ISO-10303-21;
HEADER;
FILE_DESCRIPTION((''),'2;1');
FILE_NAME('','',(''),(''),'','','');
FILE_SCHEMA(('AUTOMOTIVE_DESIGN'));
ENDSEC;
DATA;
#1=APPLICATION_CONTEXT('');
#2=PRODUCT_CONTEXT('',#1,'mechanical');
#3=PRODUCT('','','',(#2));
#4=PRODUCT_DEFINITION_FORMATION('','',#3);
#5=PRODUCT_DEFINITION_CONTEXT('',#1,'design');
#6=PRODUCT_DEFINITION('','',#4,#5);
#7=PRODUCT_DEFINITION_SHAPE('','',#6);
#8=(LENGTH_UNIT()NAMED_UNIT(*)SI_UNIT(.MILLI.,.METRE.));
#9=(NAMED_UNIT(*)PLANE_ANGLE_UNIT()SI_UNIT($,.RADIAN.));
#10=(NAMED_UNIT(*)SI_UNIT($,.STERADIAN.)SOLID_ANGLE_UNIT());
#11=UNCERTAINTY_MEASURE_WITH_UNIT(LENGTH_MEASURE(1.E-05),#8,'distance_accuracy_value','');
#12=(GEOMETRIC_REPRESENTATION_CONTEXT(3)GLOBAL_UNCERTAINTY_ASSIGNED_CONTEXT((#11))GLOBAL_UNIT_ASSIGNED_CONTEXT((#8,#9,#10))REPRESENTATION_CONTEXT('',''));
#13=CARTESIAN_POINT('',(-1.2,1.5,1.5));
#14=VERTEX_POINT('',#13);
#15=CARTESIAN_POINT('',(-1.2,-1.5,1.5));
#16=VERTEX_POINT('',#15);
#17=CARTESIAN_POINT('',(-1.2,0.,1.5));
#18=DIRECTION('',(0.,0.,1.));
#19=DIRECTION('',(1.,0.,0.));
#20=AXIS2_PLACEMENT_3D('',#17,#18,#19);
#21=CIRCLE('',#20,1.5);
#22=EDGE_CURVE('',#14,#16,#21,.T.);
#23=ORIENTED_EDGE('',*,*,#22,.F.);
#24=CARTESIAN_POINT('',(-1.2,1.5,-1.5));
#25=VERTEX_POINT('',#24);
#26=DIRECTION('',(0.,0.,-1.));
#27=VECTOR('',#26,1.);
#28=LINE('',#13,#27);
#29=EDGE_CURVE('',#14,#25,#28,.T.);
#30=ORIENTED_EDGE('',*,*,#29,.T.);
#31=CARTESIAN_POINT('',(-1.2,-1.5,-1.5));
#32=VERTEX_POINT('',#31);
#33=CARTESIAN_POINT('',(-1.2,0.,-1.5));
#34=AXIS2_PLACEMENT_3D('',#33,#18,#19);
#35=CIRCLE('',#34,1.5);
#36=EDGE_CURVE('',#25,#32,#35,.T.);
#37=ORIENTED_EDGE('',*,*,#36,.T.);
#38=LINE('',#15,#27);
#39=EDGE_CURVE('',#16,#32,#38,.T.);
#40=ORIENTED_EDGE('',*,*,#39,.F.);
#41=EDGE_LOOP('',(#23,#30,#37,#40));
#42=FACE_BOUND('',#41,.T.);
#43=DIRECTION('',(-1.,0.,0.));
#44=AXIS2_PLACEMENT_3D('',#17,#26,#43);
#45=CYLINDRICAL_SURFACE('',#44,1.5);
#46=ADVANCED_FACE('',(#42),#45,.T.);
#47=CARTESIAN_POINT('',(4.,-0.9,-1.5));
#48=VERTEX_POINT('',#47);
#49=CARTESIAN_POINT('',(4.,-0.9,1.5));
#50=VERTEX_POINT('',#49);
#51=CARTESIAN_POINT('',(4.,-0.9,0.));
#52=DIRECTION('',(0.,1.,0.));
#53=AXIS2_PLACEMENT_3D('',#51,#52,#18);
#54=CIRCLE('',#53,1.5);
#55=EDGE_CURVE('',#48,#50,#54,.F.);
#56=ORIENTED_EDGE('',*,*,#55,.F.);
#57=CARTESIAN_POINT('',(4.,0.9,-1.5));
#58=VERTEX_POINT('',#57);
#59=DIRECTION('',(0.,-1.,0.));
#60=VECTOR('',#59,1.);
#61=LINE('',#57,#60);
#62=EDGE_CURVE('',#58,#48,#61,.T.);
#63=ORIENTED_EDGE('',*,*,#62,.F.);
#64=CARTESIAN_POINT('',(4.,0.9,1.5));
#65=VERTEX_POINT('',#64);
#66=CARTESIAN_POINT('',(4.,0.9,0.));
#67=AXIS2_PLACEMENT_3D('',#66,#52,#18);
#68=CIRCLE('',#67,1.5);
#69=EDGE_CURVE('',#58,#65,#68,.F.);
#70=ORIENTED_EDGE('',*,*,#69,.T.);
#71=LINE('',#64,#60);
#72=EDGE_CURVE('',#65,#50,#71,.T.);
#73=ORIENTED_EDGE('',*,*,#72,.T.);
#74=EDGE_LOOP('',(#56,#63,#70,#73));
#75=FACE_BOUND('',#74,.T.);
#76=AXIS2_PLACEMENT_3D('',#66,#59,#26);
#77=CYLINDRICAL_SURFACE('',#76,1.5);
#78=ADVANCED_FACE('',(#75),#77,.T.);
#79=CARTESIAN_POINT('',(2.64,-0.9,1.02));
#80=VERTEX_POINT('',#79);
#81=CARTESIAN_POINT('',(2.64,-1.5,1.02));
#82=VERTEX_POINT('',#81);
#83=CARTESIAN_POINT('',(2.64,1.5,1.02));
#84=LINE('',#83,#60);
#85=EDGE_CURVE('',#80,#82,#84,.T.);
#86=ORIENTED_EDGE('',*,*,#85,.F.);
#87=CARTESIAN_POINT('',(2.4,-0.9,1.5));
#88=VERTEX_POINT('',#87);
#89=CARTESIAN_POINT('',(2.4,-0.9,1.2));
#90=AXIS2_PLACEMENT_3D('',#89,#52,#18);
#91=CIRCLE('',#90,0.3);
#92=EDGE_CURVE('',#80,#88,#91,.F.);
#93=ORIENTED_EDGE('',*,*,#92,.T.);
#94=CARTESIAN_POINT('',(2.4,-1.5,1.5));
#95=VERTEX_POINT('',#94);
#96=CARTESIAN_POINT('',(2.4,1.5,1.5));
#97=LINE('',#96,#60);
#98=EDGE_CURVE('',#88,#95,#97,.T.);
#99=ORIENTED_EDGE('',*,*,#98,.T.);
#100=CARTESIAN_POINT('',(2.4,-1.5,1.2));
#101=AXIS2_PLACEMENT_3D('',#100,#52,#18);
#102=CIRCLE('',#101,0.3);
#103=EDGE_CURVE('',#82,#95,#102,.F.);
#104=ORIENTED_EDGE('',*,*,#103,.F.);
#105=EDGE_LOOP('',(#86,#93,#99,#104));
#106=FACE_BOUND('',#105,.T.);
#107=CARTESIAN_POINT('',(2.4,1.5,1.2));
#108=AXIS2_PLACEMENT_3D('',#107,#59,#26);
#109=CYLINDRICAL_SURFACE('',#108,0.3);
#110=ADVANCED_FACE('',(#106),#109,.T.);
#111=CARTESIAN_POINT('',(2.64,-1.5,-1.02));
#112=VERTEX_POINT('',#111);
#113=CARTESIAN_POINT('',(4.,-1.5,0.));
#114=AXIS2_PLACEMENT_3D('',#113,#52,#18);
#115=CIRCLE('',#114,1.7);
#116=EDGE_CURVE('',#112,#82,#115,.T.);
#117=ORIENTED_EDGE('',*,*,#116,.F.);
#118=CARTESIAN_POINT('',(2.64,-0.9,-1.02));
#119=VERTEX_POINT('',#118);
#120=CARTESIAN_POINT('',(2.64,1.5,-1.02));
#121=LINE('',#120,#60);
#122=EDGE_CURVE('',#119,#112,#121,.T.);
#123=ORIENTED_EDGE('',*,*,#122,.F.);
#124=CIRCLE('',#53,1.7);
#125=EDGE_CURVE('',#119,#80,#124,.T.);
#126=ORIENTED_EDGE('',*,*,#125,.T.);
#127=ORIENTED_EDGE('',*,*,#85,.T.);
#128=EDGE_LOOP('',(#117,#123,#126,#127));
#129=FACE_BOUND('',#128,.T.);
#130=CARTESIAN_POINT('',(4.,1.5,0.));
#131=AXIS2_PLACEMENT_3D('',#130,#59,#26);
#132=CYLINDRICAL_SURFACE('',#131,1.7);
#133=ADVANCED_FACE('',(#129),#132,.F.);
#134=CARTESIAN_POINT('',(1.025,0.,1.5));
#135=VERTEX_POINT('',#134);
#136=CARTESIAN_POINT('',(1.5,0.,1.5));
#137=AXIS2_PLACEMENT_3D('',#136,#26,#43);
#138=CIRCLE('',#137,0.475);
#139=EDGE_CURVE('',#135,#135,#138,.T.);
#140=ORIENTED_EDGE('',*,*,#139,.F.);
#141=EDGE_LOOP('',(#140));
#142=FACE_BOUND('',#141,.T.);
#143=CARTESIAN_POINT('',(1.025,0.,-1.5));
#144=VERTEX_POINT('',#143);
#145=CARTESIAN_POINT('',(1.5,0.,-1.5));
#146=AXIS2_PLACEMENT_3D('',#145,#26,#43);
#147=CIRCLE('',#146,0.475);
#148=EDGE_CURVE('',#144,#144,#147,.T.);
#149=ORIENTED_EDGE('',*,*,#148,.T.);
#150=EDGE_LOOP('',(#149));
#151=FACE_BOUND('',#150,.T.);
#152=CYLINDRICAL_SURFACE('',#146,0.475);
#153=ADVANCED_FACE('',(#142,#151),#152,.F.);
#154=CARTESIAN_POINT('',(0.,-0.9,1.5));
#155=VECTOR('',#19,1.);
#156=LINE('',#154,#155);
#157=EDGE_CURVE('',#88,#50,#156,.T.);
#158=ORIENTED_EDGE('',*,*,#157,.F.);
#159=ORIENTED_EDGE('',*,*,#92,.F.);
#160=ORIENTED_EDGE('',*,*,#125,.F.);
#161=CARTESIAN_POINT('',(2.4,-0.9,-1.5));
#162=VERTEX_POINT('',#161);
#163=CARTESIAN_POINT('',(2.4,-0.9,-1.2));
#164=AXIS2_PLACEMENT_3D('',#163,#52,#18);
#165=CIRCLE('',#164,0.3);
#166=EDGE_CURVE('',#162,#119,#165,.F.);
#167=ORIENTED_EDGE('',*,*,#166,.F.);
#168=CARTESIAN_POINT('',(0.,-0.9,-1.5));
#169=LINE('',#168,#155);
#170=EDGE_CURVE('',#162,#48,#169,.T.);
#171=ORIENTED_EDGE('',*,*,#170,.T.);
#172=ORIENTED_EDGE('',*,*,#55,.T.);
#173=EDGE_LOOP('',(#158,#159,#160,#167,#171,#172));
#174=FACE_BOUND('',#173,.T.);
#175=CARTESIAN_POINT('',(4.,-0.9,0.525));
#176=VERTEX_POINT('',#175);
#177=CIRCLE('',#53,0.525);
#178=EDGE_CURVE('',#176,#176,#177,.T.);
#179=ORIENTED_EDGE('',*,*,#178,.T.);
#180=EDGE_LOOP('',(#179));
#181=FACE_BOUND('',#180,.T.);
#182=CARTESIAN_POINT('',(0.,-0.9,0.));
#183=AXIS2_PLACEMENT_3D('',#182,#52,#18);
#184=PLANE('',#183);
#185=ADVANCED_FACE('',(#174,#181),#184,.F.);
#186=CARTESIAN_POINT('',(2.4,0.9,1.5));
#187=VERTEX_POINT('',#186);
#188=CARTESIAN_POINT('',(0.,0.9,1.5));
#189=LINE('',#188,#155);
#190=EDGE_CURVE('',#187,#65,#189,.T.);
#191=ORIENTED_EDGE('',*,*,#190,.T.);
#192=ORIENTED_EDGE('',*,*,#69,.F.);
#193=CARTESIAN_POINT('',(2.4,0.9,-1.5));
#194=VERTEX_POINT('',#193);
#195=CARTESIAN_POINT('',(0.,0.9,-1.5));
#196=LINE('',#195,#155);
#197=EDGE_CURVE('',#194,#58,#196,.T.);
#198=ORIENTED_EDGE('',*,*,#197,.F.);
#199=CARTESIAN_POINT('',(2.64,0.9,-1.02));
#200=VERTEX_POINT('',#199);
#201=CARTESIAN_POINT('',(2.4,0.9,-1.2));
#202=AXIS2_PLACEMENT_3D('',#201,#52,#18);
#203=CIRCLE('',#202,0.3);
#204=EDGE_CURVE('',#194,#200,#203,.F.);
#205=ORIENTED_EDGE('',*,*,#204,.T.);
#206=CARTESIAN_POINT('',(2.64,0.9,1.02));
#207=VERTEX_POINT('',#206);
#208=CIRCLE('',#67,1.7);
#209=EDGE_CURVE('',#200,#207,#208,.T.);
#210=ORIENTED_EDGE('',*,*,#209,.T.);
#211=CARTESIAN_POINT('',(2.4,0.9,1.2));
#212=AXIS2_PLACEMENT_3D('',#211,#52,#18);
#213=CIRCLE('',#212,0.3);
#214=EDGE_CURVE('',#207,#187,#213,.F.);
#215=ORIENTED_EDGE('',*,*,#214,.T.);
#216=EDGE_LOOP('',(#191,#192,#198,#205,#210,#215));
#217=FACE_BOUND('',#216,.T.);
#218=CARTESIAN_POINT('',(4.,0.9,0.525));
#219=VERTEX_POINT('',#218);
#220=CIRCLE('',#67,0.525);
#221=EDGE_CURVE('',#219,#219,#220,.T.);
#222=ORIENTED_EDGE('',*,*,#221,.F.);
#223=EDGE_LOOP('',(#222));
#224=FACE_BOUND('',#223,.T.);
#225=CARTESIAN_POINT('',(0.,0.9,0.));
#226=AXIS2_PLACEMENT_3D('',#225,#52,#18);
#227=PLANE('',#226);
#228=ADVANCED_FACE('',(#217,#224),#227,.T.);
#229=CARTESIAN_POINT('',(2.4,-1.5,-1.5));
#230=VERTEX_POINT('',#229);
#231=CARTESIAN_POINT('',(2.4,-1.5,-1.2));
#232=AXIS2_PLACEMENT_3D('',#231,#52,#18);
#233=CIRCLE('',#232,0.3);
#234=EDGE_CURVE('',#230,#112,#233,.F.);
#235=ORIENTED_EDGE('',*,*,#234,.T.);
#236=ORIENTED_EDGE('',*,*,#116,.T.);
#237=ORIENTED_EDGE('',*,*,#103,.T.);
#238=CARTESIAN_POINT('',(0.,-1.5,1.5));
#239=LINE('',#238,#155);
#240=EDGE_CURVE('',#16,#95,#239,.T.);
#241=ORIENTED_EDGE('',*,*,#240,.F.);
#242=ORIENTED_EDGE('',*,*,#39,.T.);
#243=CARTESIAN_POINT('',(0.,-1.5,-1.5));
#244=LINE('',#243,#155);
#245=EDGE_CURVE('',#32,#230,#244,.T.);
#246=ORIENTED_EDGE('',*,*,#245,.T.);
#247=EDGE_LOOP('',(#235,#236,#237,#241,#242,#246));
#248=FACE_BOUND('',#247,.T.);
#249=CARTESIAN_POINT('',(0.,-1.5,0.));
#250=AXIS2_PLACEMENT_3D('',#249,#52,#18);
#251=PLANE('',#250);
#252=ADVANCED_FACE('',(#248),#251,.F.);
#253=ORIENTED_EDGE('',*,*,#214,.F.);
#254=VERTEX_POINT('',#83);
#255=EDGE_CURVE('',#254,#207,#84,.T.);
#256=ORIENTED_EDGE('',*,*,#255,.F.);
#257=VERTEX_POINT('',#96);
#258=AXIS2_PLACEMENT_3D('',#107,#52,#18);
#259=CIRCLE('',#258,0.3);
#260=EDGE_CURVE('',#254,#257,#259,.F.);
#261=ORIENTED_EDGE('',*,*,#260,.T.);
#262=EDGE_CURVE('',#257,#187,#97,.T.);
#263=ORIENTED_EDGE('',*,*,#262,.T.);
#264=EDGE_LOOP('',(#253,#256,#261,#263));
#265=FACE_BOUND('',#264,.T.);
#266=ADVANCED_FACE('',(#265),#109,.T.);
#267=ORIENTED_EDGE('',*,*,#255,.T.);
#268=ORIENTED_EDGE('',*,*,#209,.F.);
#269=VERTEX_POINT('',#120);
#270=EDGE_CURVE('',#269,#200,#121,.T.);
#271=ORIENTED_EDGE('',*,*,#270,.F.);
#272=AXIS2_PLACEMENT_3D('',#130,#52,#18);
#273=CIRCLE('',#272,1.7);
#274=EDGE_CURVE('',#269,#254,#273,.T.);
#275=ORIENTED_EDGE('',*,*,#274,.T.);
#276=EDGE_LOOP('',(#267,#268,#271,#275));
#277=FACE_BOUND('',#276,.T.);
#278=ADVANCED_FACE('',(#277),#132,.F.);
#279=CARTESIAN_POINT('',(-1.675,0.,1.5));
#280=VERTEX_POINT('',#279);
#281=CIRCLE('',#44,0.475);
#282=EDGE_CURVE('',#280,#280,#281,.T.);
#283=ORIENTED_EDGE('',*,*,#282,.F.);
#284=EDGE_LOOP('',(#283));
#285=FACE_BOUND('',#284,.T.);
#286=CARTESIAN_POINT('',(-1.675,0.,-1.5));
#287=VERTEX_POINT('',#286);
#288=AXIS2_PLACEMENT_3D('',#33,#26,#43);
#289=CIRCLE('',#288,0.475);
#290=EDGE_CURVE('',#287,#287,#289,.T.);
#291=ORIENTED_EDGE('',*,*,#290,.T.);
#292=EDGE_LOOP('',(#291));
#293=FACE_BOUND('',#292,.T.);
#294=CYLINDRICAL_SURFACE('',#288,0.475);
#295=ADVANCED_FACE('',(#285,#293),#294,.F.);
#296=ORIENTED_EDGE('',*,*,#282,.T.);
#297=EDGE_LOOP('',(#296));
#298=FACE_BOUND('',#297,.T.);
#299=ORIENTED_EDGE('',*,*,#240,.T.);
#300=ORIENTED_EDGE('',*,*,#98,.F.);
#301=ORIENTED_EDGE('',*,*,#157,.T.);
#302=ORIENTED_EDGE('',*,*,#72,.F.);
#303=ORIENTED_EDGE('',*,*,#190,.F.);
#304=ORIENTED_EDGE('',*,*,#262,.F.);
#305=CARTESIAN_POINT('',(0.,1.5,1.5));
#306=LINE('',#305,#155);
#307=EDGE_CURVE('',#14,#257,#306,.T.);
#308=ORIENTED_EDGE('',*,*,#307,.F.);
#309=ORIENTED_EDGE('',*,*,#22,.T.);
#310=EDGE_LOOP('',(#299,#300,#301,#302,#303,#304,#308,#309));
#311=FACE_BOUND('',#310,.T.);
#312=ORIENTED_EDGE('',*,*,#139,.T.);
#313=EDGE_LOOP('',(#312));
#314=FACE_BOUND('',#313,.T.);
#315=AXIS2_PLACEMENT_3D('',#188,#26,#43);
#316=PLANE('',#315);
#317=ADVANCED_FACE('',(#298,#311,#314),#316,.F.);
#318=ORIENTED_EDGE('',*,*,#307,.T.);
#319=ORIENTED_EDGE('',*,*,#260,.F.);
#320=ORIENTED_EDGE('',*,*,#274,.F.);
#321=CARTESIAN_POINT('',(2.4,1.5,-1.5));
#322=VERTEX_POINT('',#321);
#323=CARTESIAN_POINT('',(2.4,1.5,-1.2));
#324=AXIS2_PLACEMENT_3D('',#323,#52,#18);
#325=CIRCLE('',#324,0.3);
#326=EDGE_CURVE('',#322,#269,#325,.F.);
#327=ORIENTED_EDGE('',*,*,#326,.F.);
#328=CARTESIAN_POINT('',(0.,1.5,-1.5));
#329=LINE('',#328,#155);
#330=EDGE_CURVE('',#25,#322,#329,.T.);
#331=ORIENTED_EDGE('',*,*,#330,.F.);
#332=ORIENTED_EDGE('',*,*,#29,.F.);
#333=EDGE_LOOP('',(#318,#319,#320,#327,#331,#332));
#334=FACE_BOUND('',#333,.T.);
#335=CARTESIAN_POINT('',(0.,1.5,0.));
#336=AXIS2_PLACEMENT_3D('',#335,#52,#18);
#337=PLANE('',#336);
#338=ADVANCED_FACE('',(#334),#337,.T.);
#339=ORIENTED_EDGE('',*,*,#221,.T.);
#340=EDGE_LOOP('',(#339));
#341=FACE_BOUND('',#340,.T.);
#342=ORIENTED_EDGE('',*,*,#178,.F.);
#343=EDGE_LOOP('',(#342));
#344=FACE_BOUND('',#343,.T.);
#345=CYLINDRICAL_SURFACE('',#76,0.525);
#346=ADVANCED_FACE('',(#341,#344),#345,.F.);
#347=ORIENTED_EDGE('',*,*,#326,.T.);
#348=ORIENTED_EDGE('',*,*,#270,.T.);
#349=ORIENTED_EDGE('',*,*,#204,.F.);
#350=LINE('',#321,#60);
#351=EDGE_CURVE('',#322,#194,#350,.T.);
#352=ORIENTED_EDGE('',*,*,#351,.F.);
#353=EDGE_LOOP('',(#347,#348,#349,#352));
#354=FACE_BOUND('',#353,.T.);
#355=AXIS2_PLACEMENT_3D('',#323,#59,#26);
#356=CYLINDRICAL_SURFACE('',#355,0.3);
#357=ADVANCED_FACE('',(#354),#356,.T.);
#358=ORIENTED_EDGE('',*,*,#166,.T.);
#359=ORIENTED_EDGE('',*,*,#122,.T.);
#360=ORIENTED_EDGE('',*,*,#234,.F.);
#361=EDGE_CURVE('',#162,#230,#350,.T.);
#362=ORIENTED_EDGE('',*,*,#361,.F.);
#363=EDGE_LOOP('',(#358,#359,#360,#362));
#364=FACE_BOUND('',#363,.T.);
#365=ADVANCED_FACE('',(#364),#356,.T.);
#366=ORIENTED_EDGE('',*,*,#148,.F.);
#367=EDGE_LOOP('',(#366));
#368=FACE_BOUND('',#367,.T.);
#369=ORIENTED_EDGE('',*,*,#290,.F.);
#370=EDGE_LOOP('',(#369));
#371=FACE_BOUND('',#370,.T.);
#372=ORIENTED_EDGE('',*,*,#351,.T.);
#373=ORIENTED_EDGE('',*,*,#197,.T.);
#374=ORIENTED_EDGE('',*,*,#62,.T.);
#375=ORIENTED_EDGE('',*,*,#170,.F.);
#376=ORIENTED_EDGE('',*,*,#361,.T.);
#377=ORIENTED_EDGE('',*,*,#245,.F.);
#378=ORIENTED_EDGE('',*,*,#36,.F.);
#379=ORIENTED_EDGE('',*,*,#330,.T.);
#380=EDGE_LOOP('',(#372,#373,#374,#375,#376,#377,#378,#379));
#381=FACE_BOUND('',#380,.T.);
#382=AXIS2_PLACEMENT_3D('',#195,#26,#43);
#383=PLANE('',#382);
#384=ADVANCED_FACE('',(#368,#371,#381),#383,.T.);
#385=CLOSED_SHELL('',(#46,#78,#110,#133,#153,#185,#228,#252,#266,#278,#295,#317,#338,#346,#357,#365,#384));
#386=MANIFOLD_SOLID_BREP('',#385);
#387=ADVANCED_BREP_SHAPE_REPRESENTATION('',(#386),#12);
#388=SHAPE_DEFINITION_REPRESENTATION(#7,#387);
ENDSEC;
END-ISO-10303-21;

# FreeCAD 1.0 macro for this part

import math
import FreeCAD as App
import Part
import Sketcher

V = App.Vector

doc = App.newDocument("Part")
params = doc.addObject("Spreadsheet::Sheet", "Params")
for row, (alias, value) in enumerate([
    ("sketch1_radius", "0.3 mm"),
    ("sketch1_radius2", "1.5 mm"),
    ("sketch1_radius3", "1.7 mm"),
    ("sketch1_diameter", "1.05 mm"),
    ("pad1_length", "1.8 mm"),
    ("sketch2_radius", "0.3 mm"),
    ("sketch2_radius2", "1.7 mm"),
    ("sketch2_height", "3 mm"),
    ("sketch2_width", "6.4 mm"),
    ("pad2_length", "3 mm"),
    ("sketch3_diameter", "0.95 mm"),
    ("hole_diameter", "0.95 mm"),
    ("sketch4_radius", "1.5 mm"),
    ("sketch4_width", "2.8 mm"),
], start=1):
    params.set(f"A{row}", alias)
    params.set(f"B{row}", "=" + value)
    params.setAlias(f"B{row}", alias)

body = doc.addObject("PartDesign::Body", "Body")

# Sketch on XZ plane
sketch1 = doc.addObject("Sketcher::SketchObject", "Sketch")
body.addObject(sketch1)
sketch1.AttachmentSupport = (doc.XZ_Plane, [""])
sketch1.MapMode = "FlatFace"
sketch1.addGeometry(Part.ArcOfCircle(Part.Circle(V(2.4, 1.2, 0), V(0, 0, 1), 0.3), math.radians(-37), math.radians(90)), False)
sketch1.addGeometry(Part.LineSegment(V(2.4, 1.5, 0), V(4, 1.5, 0)), False)
sketch1.addGeometry(Part.ArcOfCircle(Part.Circle(V(4, 0, 0), V(0, 0, 1), 1.5), math.radians(-90), math.radians(90)), False)
sketch1.addGeometry(Part.LineSegment(V(4, -1.5, 0), V(2.4, -1.5, 0)), False)
sketch1.addGeometry(Part.ArcOfCircle(Part.Circle(V(2.4, -1.2, 0), V(0, 0, 1), 0.3), math.radians(-90), math.radians(37)), False)
sketch1.addGeometry(Part.ArcOfCircle(Part.Circle(V(4, 0, 0), V(0, 0, 1), 1.7), math.radians(143), math.radians(217)), False)
sketch1.addGeometry(Part.Circle(V(4, 0, 0), V(0, 0, 1), 0.53), False)
sketch1.addConstraint(Sketcher.Constraint("Tangent", 0, 2, 1, 1))
sketch1.addConstraint(Sketcher.Constraint("Tangent", 1, 2, 2, 2))
sketch1.addConstraint(Sketcher.Constraint("Tangent", 2, 1, 3, 1))
sketch1.addConstraint(Sketcher.Constraint("Tangent", 3, 2, 4, 1))
sketch1.addConstraint(Sketcher.Constraint("Tangent", 4, 2, 5, 2))
sketch1.addConstraint(Sketcher.Constraint("Tangent", 5, 1, 0, 1))
sketch1.addConstraint(Sketcher.Constraint("Horizontal", 1))
sketch1.addConstraint(Sketcher.Constraint("Horizontal", 3))
sketch1.addConstraint(Sketcher.Constraint("Coincident", 5, 3, 2, 3))
sketch1.addConstraint(Sketcher.Constraint("Coincident", 6, 3, 2, 3))
sketch1.addConstraint(Sketcher.Constraint("Equal", 0, 4))
sketch1.addConstraint(Sketcher.Constraint("PointOnObject", 2, 3, -1))
sketch1.addConstraint(Sketcher.Constraint("Radius", 0, 0.3))
sketch1.addConstraint(Sketcher.Constraint("Radius", 2, 1.5))
sketch1.addConstraint(Sketcher.Constraint("Radius", 5, 1.7))
sketch1.addConstraint(Sketcher.Constraint("Diameter", 6, 1.05))
sketch1.addConstraint(Sketcher.Constraint("DistanceX", -1, 1, 2, 3, 4.0))
sketch1.setExpression("Constraints[12]", "Params.sketch1_radius")
sketch1.setExpression("Constraints[13]", "Params.sketch1_radius2")
sketch1.setExpression("Constraints[14]", "Params.sketch1_radius3")
sketch1.setExpression("Constraints[15]", "Params.sketch1_diameter")
pad1 = doc.addObject("PartDesign::Pad", "Pad")
body.addObject(pad1)
pad1.Profile = sketch1
pad1.setExpression("Length", "Params.pad1_length")
pad1.Midplane = True

# Sketch on XZ plane
sketch2 = doc.addObject("Sketcher::SketchObject", "Sketch001")
body.addObject(sketch2)
sketch2.AttachmentSupport = (doc.XZ_Plane, [""])
sketch2.MapMode = "FlatFace"
sketch2.addGeometry(Part.LineSegment(V(-4, -1.5, 0), V(-4, 1.5, 0)), False)
sketch2.addGeometry(Part.LineSegment(V(-4, 1.5, 0), V(2.4, 1.5, 0)), False)
sketch2.addGeometry(Part.ArcOfCircle(Part.Circle(V(2.4, 1.2, 0), V(0, 0, 1), 0.3), math.radians(-37), math.radians(90)), False)
sketch2.addGeometry(Part.ArcOfCircle(Part.Circle(V(4, 0, 0), V(0, 0, 1), 1.7), math.radians(143), math.radians(217)), False)
sketch2.addGeometry(Part.ArcOfCircle(Part.Circle(V(2.4, -1.2, 0), V(0, 0, 1), 0.3), math.radians(-90), math.radians(37)), False)
sketch2.addGeometry(Part.LineSegment(V(2.4, -1.5, 0), V(-4, -1.5, 0)), False)
sketch2.addConstraint(Sketcher.Constraint("Coincident", 0, 2, 1, 1))
sketch2.addConstraint(Sketcher.Constraint("Tangent", 1, 2, 2, 2))
sketch2.addConstraint(Sketcher.Constraint("Tangent", 2, 1, 3, 1))
sketch2.addConstraint(Sketcher.Constraint("Tangent", 3, 2, 4, 2))
sketch2.addConstraint(Sketcher.Constraint("Tangent", 4, 1, 5, 1))
sketch2.addConstraint(Sketcher.Constraint("Coincident", 5, 2, 0, 1))
sketch2.addConstraint(Sketcher.Constraint("Vertical", 0))
sketch2.addConstraint(Sketcher.Constraint("Horizontal", 1))
sketch2.addConstraint(Sketcher.Constraint("Horizontal", 5))
sketch2.addConstraint(Sketcher.Constraint("Equal", 2, 4))
sketch2.addConstraint(Sketcher.Constraint("Symmetric", 2, 3, 4, 3, -1))
sketch2.addConstraint(Sketcher.Constraint("Radius", 2, 0.3))
sketch2.addConstraint(Sketcher.Constraint("Radius", 3, 1.7))
sketch2.addConstraint(Sketcher.Constraint("DistanceY", 0, 1, 0, 2, 3.0))
sketch2.addConstraint(Sketcher.Constraint("DistanceX", 1, 1, 1, 2, 6.4))
sketch2.addConstraint(Sketcher.Constraint("DistanceX", -1, 1, 3, 3, 4.0))
sketch2.setExpression("Constraints[11]", "Params.sketch2_radius")
sketch2.setExpression("Constraints[12]", "Params.sketch2_radius2")
sketch2.setExpression("Constraints[13]", "Params.sketch2_height")
sketch2.setExpression("Constraints[14]", "Params.sketch2_width")
pad2 = doc.addObject("PartDesign::Pad", "Pad001")
body.addObject(pad2)
pad2.Profile = sketch2
pad2.setExpression("Length", "Params.pad2_length")
pad2.Midplane = True

# Sketch on XY plane
sketch3 = doc.addObject("Sketcher::SketchObject", "Sketch002")
body.addObject(sketch3)
sketch3.AttachmentSupport = (doc.XY_Plane, [""])
sketch3.MapMode = "FlatFace"
sketch3.AttachmentOffset = App.Placement(V(0, 0, -1.5), App.Rotation())
sketch3.addGeometry(Part.Circle(V(1.5, 0, 0), V(0, 0, 1), 0.47), False)
sketch3.addGeometry(Part.Circle(V(-1.2, 0, 0), V(0, 0, 1), 0.47), False)
sketch3.addConstraint(Sketcher.Constraint("Equal", 0, 1))
sketch3.addConstraint(Sketcher.Constraint("PointOnObject", 0, 3, -1))
sketch3.addConstraint(Sketcher.Constraint("PointOnObject", 1, 3, -1))
sketch3.addConstraint(Sketcher.Constraint("Diameter", 0, 0.95))
sketch3.addConstraint(Sketcher.Constraint("DistanceX", -1, 1, 0, 3, 1.5))
sketch3.addConstraint(Sketcher.Constraint("DistanceX", 1, 3, -1, 1, 1.2))
sketch3.setExpression("Constraints[3]", "Params.sketch3_diameter")
doc.recompute()
hole = doc.addObject("PartDesign::Hole", "Hole")
body.addObject(hole)
hole.Profile = sketch3
hole.ThreadType = "None"
hole.setExpression("Diameter", "Params.hole_diameter")
hole.DepthType = "ThroughAll"
hole.Reversed = True

# Sketch on XY plane
sketch4 = doc.addObject("Sketcher::SketchObject", "Sketch003")
body.addObject(sketch4)
sketch4.AttachmentSupport = (doc.XY_Plane, [""])
sketch4.MapMode = "FlatFace"
sketch4.AttachmentOffset = App.Placement(V(0, 0, -1.5), App.Rotation())
sketch4.addGeometry(Part.LineSegment(V(-4, 1.5, 0), V(-1.2, 1.5, 0)), False)
sketch4.addGeometry(Part.ArcOfCircle(Part.Circle(V(-1.2, 0, 0), V(0, 0, 1), 1.5), math.radians(90), math.radians(270)), False)
sketch4.addGeometry(Part.LineSegment(V(-1.2, -1.5, 0), V(-4, -1.5, 0)), False)
sketch4.addGeometry(Part.LineSegment(V(-4, -1.5, 0), V(-4, 1.5, 0)), False)
sketch4.addConstraint(Sketcher.Constraint("Tangent", 0, 2, 1, 1))
sketch4.addConstraint(Sketcher.Constraint("Tangent", 1, 2, 2, 1))
sketch4.addConstraint(Sketcher.Constraint("Coincident", 2, 2, 3, 1))
sketch4.addConstraint(Sketcher.Constraint("Coincident", 3, 2, 0, 1))
sketch4.addConstraint(Sketcher.Constraint("Horizontal", 0))
sketch4.addConstraint(Sketcher.Constraint("Horizontal", 2))
sketch4.addConstraint(Sketcher.Constraint("Vertical", 3))
sketch4.addConstraint(Sketcher.Constraint("PointOnObject", 1, 3, -1))
sketch4.addConstraint(Sketcher.Constraint("Radius", 1, 1.5))
sketch4.addConstraint(Sketcher.Constraint("DistanceX", 0, 1, 0, 2, 2.8))
sketch4.addConstraint(Sketcher.Constraint("DistanceX", 2, 2, -1, 1, 4.0))
sketch4.setExpression("Constraints[8]", "Params.sketch4_radius")
sketch4.setExpression("Constraints[9]", "Params.sketch4_width")
pocket1 = doc.addObject("PartDesign::Pocket", "Pocket")
body.addObject(pocket1)
pocket1.Profile = sketch4
pocket1.Type = "ThroughAll"
pocket1.Reversed = True

doc.recompute()
